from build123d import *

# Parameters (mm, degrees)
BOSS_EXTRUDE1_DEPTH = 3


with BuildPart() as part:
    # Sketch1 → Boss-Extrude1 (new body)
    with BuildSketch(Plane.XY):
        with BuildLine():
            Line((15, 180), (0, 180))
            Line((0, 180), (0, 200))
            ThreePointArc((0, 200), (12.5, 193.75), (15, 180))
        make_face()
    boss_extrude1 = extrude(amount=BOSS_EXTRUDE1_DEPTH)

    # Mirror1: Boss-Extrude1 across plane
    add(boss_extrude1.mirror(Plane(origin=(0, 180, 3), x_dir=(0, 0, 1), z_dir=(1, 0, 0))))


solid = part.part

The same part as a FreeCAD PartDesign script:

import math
import FreeCAD as App
import Part
import Sketcher

doc = App.newDocument("Part")
body = doc.addObject("PartDesign::Body", "Body")

# Sketch on XY plane
sketch1 = body.newObject("Sketcher::SketchObject", "Sketch")
sketch1.AttachmentSupport = (doc.getObject("XY_Plane"), [""])
sketch1.MapMode = "FlatFace"
sketch1.addGeometry([
    Part.LineSegment(App.Vector(0, 180, 0), App.Vector(15, 180, 0)),
    Part.ArcOfCircle(Part.Circle(App.Vector(0, 184, 0), App.Vector(0, 0, 1), 16), math.radians(-16), math.radians(90)),
    Part.LineSegment(App.Vector(0, 200, 0), App.Vector(0, 180, 0)),
], False)
sketch1.addConstraint([
    Sketcher.Constraint("Coincident", 0, 2, 1, 1),
    Sketcher.Constraint("Coincident", 1, 2, 2, 1),
    Sketcher.Constraint("Coincident", 2, 2, 0, 1),
    Sketcher.Constraint("Horizontal", 0),
    Sketcher.Constraint("Vertical", 2),
    Sketcher.Constraint("PointOnObject", 1, 3, -2),
    Sketcher.Constraint("PointOnObject", 1, 2, -2),
    Sketcher.Constraint("DistanceX", 0, 1, 0, 2, 15.0),
    Sketcher.Constraint("DistanceY", 2, 2, 2, 1, 20.0),
    Sketcher.Constraint("DistanceY", -1, 1, 0, 2, 180.0),
])
pad1 = body.newObject("PartDesign::Pad", "Pad")
pad1.Profile = sketch1
pad1.Length = 3
doc.recompute()

mirrored = body.newObject("PartDesign::Mirrored", "Mirrored")
mirrored.Originals = [pad1]
mirrored.MirrorPlane = (doc.getObject("YZ_Plane"), [""])
body.Tip = mirrored

doc.recompute()
